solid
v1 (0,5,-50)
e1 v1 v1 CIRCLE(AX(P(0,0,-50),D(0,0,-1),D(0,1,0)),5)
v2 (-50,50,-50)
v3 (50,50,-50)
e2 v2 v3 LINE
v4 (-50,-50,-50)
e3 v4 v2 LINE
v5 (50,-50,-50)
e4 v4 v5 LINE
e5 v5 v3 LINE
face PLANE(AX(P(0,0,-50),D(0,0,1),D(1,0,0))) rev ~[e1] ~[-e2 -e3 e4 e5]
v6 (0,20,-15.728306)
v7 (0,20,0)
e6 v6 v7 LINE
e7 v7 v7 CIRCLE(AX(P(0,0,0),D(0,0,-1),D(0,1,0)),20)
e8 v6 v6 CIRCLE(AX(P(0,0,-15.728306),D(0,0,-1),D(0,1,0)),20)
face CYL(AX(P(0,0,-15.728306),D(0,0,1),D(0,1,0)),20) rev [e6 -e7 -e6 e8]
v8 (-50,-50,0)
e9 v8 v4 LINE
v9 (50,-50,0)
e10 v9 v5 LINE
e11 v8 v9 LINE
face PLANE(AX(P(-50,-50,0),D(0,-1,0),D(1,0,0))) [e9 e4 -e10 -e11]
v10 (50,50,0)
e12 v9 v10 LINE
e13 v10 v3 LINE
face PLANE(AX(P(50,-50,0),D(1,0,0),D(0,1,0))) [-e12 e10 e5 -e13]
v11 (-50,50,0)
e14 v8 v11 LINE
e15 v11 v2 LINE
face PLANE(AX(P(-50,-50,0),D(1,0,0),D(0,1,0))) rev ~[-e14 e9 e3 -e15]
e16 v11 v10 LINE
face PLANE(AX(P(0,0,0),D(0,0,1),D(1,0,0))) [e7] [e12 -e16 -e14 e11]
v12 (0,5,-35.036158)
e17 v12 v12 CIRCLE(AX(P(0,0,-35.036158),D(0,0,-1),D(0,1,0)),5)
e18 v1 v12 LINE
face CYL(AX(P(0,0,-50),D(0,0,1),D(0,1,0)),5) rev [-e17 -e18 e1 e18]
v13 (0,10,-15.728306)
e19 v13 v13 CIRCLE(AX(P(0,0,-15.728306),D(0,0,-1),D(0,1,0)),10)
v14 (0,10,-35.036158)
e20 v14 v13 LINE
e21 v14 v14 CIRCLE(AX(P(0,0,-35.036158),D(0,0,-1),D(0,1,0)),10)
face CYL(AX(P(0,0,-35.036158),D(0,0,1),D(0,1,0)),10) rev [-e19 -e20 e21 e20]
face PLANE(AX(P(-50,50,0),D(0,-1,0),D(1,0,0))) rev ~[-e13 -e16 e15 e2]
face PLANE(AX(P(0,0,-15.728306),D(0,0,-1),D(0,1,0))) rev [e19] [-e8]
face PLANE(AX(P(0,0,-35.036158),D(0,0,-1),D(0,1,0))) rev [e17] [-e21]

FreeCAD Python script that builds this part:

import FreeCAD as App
import Part
import Sketcher

V = App.Vector

doc = App.newDocument("Part")
body = doc.addObject("PartDesign::Body", "Body")

sketch1 = doc.addObject("Sketcher::SketchObject", "Sketch")
body.addObject(sketch1)
sketch1.AttachmentSupport = (doc.XY_Plane, [""])
sketch1.MapMode = "FlatFace"
sketch1.addGeometry([
    Part.LineSegment(V(-50, 50, 0), V(-50, -50, 0)),
    Part.LineSegment(V(-50, -50, 0), V(50, -50, 0)),
    Part.LineSegment(V(50, -50, 0), V(50, 50, 0)),
    Part.LineSegment(V(50, 50, 0), V(-50, 50, 0)),
], False)
sketch1.addConstraint([
    Sketcher.Constraint("Coincident", 0, 2, 1, 1),
    Sketcher.Constraint("Coincident", 1, 2, 2, 1),
    Sketcher.Constraint("Coincident", 2, 2, 3, 1),
    Sketcher.Constraint("Coincident", 3, 2, 0, 1),
    Sketcher.Constraint("Vertical", 0),
    Sketcher.Constraint("Horizontal", 1),
    Sketcher.Constraint("Vertical", 2),
    Sketcher.Constraint("Horizontal", 3),
    Sketcher.Constraint("Symmetric", 0, 2, 2, 2, -1, 1),
    Sketcher.Constraint("Equal", 3, 0),
    Sketcher.Constraint("DistanceX", 1, 1, 1, 2, 100.0),
])
pad1 = doc.addObject("PartDesign::Pad", "Pad")
body.addObject(pad1)
pad1.Profile = sketch1
pad1.Length = 50
pad1.Reversed = True

sketch2 = doc.addObject("Sketcher::SketchObject", "Sketch001")
body.addObject(sketch2)
sketch2.AttachmentSupport = (doc.YZ_Plane, [""])
sketch2.MapMode = "FlatFace"
sketch2.addGeometry([
    Part.LineSegment(V(20, 0, 0), V(0, 0, 0)),
    Part.LineSegment(V(0, 0, 0), V(0, -50, 0)),
    Part.LineSegment(V(0, -50, 0), V(5, -50, 0)),
    Part.LineSegment(V(5, -50, 0), V(5, -35.036158, 0)),
    Part.LineSegment(V(5, -35.036158, 0), V(10, -35.036158, 0)),
    Part.LineSegment(V(10, -35.036158, 0), V(10, -15.728306, 0)),
    Part.LineSegment(V(10, -15.728306, 0), V(20, -15.728306, 0)),
    Part.LineSegment(V(20, -15.728306, 0), V(20, 0, 0)),
], False)
sketch2.addConstraint([
    Sketcher.Constraint("Coincident", 0, 2, 1, 1),
    Sketcher.Constraint("Coincident", 1, 2, 2, 1),
    Sketcher.Constraint("Coincident", 2, 2, 3, 1),
    Sketcher.Constraint("Coincident", 3, 2, 4, 1),
    Sketcher.Constraint("Coincident", 4, 2, 5, 1),
    Sketcher.Constraint("Coincident", 5, 2, 6, 1),
    Sketcher.Constraint("Coincident", 6, 2, 7, 1),
    Sketcher.Constraint("Coincident", 7, 2, 0, 1),
    Sketcher.Constraint("Horizontal", 0),
    Sketcher.Constraint("Vertical", 1),
    Sketcher.Constraint("Horizontal", 2),
    Sketcher.Constraint("Vertical", 3),
    Sketcher.Constraint("Horizontal", 4),
    Sketcher.Constraint("Vertical", 5),
    Sketcher.Constraint("Horizontal", 6),
    Sketcher.Constraint("Vertical", 7),
    Sketcher.Constraint("Coincident", 0, 2, -1, 1),
    Sketcher.Constraint("Equal", 2, 4),
    Sketcher.Constraint("DistanceX", 0, 2, 0, 1, 20.0),
    Sketcher.Constraint("DistanceX", 2, 1, 2, 2, 5.0),
    Sketcher.Constraint("DistanceY", 1, 2, 1, 1, 50.0),
    Sketcher.Constraint("DistanceY", 3, 1, 3, 2, 14.963842),
    Sketcher.Constraint("DistanceY", 5, 1, 5, 2, 19.307852),
])
groove = doc.addObject("PartDesign::Groove", "Groove")
body.addObject(groove)
groove.Profile = sketch2
groove.ReferenceAxis = (sketch2, ["V_Axis"])
groove.Angle = 360

doc.recompute()
